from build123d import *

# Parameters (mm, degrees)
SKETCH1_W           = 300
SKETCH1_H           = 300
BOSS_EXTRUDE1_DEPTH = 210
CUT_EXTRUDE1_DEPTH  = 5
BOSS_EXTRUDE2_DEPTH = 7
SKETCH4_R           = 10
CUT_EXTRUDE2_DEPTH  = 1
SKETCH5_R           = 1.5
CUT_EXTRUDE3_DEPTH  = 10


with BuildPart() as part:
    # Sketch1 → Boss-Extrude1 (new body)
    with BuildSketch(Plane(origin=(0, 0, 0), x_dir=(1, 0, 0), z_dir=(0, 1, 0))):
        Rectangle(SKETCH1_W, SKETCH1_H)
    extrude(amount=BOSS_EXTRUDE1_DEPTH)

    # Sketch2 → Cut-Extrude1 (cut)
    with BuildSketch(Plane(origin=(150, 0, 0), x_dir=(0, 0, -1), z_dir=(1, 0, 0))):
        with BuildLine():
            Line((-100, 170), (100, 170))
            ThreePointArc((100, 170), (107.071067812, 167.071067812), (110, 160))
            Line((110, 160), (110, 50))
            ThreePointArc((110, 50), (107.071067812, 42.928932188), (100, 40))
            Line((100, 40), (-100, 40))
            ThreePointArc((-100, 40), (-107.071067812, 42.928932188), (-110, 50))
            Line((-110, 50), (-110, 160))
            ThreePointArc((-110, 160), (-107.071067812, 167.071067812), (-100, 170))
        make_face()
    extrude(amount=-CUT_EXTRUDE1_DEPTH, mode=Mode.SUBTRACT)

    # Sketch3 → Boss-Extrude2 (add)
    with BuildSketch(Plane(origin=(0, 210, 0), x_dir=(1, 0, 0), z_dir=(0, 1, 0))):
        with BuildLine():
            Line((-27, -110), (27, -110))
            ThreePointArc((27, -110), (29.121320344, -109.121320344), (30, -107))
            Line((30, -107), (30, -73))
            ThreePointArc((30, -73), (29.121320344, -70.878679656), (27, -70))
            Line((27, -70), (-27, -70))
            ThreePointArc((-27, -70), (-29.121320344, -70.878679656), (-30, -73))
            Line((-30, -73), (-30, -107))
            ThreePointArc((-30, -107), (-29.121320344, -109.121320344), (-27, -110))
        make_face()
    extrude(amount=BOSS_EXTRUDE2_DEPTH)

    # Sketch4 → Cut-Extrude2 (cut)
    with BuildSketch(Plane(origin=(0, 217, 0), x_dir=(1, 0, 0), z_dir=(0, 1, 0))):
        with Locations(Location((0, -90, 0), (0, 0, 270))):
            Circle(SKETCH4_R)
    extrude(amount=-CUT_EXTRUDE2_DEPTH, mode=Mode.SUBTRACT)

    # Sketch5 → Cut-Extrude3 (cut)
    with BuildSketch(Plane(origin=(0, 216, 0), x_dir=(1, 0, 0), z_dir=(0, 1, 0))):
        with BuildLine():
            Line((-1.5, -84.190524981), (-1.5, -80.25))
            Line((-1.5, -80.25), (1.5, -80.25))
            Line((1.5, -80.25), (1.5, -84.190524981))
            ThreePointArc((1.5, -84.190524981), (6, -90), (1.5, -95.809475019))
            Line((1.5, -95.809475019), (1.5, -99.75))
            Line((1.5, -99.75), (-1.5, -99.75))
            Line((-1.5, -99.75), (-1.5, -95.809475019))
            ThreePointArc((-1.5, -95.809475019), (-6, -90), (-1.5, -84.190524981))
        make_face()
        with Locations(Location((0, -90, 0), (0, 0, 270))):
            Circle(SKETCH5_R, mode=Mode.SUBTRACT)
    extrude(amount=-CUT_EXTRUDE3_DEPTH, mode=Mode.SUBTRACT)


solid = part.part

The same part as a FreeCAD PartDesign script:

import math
import FreeCAD as App
import Part
import Sketcher
Q = App.Units.Quantity

doc = App.newDocument("Part")
body = doc.addObject("PartDesign::Body", "Body")

sketch1 = body.newObject("Sketcher::SketchObject", "Sketch")
sketch1.AttachmentSupport = (doc.getObject("XZ_Plane"), [""])
sketch1.MapMode = "FlatFace"
sketch1.addGeometry(Part.LineSegment(App.Vector(-150, -150, 0), App.Vector(-150, 150, 0)), False)
sketch1.addGeometry(Part.LineSegment(App.Vector(-150, 150, 0), App.Vector(150, 150, 0)), False)
sketch1.addGeometry(Part.LineSegment(App.Vector(150, 150, 0), App.Vector(150, -150, 0)), False)
sketch1.addGeometry(Part.LineSegment(App.Vector(150, -150, 0), App.Vector(-150, -150, 0)), False)
sketch1.addConstraint(Sketcher.Constraint("Coincident", 0, 2, 1, 1))
sketch1.addConstraint(Sketcher.Constraint("Coincident", 1, 2, 2, 1))
sketch1.addConstraint(Sketcher.Constraint("Coincident", 2, 2, 3, 1))
sketch1.addConstraint(Sketcher.Constraint("Coincident", 3, 2, 0, 1))
sketch1.addConstraint(Sketcher.Constraint("Vertical", 0))
sketch1.addConstraint(Sketcher.Constraint("Horizontal", 1))
sketch1.addConstraint(Sketcher.Constraint("Vertical", 2))
sketch1.addConstraint(Sketcher.Constraint("Horizontal", 3))
sketch1.addConstraint(Sketcher.Constraint("Symmetric", 0, 2, 2, 2, -1, 1))
sketch1.addConstraint(Sketcher.Constraint("Equal", 3, 0))
sketch1.addConstraint(Sketcher.Constraint("DistanceX", 1, 1, 1, 2, Q("300 mm")))
pad1 = body.newObject("PartDesign::Pad", "Pad")
pad1.Profile = sketch1
pad1.Length = 210
pad1.Reversed = True

sketch2 = body.newObject("Sketcher::SketchObject", "Sketch001")
sketch2.AttachmentSupport = (doc.getObject("YZ_Plane"), [""])
sketch2.MapMode = "FlatFace"
sketch2.AttachmentOffset = App.Placement(App.Vector(0, 0, 150), App.Rotation())
sketch2.addGeometry(Part.LineSegment(App.Vector(170, -100, 0), App.Vector(170, 100, 0)), False)
sketch2.addGeometry(Part.ArcOfCircle(Part.Circle(App.Vector(160, 100, 0), App.Vector(0, 0, 1), 10), math.radians(0), math.radians(90)), False)
sketch2.addGeometry(Part.LineSegment(App.Vector(160, 110, 0), App.Vector(50, 110, 0)), False)
sketch2.addGeometry(Part.ArcOfCircle(Part.Circle(App.Vector(50, 100, 0), App.Vector(0, 0, 1), 10), math.radians(90), math.radians(180)), False)
sketch2.addGeometry(Part.LineSegment(App.Vector(40, 100, 0), App.Vector(40, -100, 0)), False)
sketch2.addGeometry(Part.ArcOfCircle(Part.Circle(App.Vector(50, -100, 0), App.Vector(0, 0, 1), 10), math.radians(180), math.radians(270)), False)
sketch2.addGeometry(Part.LineSegment(App.Vector(50, -110, 0), App.Vector(160, -110, 0)), False)
sketch2.addGeometry(Part.ArcOfCircle(Part.Circle(App.Vector(160, -100, 0), App.Vector(0, 0, 1), 10), math.radians(-90), math.radians(0)), False)
sketch2.addConstraint(Sketcher.Constraint("Tangent", 0, 2, 1, 1))
sketch2.addConstraint(Sketcher.Constraint("Tangent", 1, 2, 2, 1))
sketch2.addConstraint(Sketcher.Constraint("Tangent", 2, 2, 3, 1))
sketch2.addConstraint(Sketcher.Constraint("Tangent", 3, 2, 4, 1))
sketch2.addConstraint(Sketcher.Constraint("Tangent", 4, 2, 5, 1))
sketch2.addConstraint(Sketcher.Constraint("Tangent", 5, 2, 6, 1))
sketch2.addConstraint(Sketcher.Constraint("Tangent", 6, 2, 7, 1))
sketch2.addConstraint(Sketcher.Constraint("Tangent", 7, 2, 0, 1))
sketch2.addConstraint(Sketcher.Constraint("Vertical", 0))
sketch2.addConstraint(Sketcher.Constraint("Horizontal", 2))
sketch2.addConstraint(Sketcher.Constraint("Vertical", 4))
sketch2.addConstraint(Sketcher.Constraint("Horizontal", 6))
sketch2.addConstraint(Sketcher.Constraint("Equal", 1, 3))
sketch2.addConstraint(Sketcher.Constraint("Equal", 3, 5))
sketch2.addConstraint(Sketcher.Constraint("Equal", 5, 7))
sketch2.addConstraint(Sketcher.Constraint("Radius", 1, Q("10 mm")))
sketch2.addConstraint(Sketcher.Constraint("DistanceX", 2, 2, 2, 1, Q("110 mm")))
sketch2.addConstraint(Sketcher.Constraint("DistanceY", 0, 1, 0, 2, Q("200 mm")))
sketch2.addConstraint(Sketcher.Constraint("DistanceX", -1, 1, 1, 3, Q("160 mm")))
sketch2.addConstraint(Sketcher.Constraint("DistanceY", -1, 1, 1, 3, Q("100 mm")))
pocket1 = body.newObject("PartDesign::Pocket", "Pocket")
pocket1.Profile = sketch2
pocket1.Length = 5

sketch3 = body.newObject("Sketcher::SketchObject", "Sketch002")
sketch3.AttachmentSupport = (doc.getObject("XZ_Plane"), [""])
sketch3.MapMode = "FlatFace"
sketch3.AttachmentOffset = App.Placement(App.Vector(0, 0, -210), App.Rotation())
sketch3.addGeometry(Part.LineSegment(App.Vector(-27, 110, 0), App.Vector(27, 110, 0)), False)
sketch3.addGeometry(Part.ArcOfCircle(Part.Circle(App.Vector(27, 107, 0), App.Vector(0, 0, 1), 3), math.radians(0), math.radians(90)), False)
sketch3.addGeometry(Part.LineSegment(App.Vector(30, 107, 0), App.Vector(30, 73, 0)), False)
sketch3.addGeometry(Part.ArcOfCircle(Part.Circle(App.Vector(27, 73, 0), App.Vector(0, 0, 1), 3), math.radians(-90), math.radians(0)), False)
sketch3.addGeometry(Part.LineSegment(App.Vector(27, 70, 0), App.Vector(-27, 70, 0)), False)
sketch3.addGeometry(Part.ArcOfCircle(Part.Circle(App.Vector(-27, 73, 0), App.Vector(0, 0, 1), 3), math.radians(180), math.radians(270)), False)
sketch3.addGeometry(Part.LineSegment(App.Vector(-30, 73, 0), App.Vector(-30, 107, 0)), False)
sketch3.addGeometry(Part.ArcOfCircle(Part.Circle(App.Vector(-27, 107, 0), App.Vector(0, 0, 1), 3), math.radians(90), math.radians(180)), False)
sketch3.addConstraint(Sketcher.Constraint("Tangent", 0, 2, 1, 2))
sketch3.addConstraint(Sketcher.Constraint("Tangent", 1, 1, 2, 1))
sketch3.addConstraint(Sketcher.Constraint("Tangent", 2, 2, 3, 2))
sketch3.addConstraint(Sketcher.Constraint("Tangent", 3, 1, 4, 1))
sketch3.addConstraint(Sketcher.Constraint("Tangent", 4, 2, 5, 2))
sketch3.addConstraint(Sketcher.Constraint("Tangent", 5, 1, 6, 1))
sketch3.addConstraint(Sketcher.Constraint("Tangent", 6, 2, 7, 2))
sketch3.addConstraint(Sketcher.Constraint("Tangent", 7, 1, 0, 1))
sketch3.addConstraint(Sketcher.Constraint("Horizontal", 0))
sketch3.addConstraint(Sketcher.Constraint("Vertical", 2))
sketch3.addConstraint(Sketcher.Constraint("Horizontal", 4))
sketch3.addConstraint(Sketcher.Constraint("Vertical", 6))
sketch3.addConstraint(Sketcher.Constraint("Equal", 1, 3))
sketch3.addConstraint(Sketcher.Constraint("Equal", 3, 5))
sketch3.addConstraint(Sketcher.Constraint("Equal", 5, 7))
sketch3.addConstraint(Sketcher.Constraint("Radius", 1, Q("3 mm")))
sketch3.addConstraint(Sketcher.Constraint("DistanceX", 0, 1, 0, 2, Q("54 mm")))
sketch3.addConstraint(Sketcher.Constraint("DistanceY", 2, 2, 2, 1, Q("34 mm")))
sketch3.addConstraint(Sketcher.Constraint("DistanceX", -1, 1, 1, 3, Q("27 mm")))
sketch3.addConstraint(Sketcher.Constraint("DistanceY", -1, 1, 1, 3, Q("107 mm")))
pad2 = body.newObject("PartDesign::Pad", "Pad001")
pad2.Profile = sketch3
pad2.Length = 7
pad2.Reversed = True

sketch4 = body.newObject("Sketcher::SketchObject", "Sketch003")
sketch4.AttachmentSupport = (doc.getObject("XZ_Plane"), [""])
sketch4.MapMode = "FlatFace"
sketch4.AttachmentOffset = App.Placement(App.Vector(0, 0, -217), App.Rotation())
sketch4.addGeometry(Part.Circle(App.Vector(0, 90, 0), App.Vector(0, 0, 1), 10), False)
sketch4.addConstraint(Sketcher.Constraint("PointOnObject", 0, 3, -2))
sketch4.addConstraint(Sketcher.Constraint("Diameter", 0, Q("20 mm")))
sketch4.addConstraint(Sketcher.Constraint("DistanceY", -1, 1, 0, 3, Q("90 mm")))
pocket2 = body.newObject("PartDesign::Pocket", "Pocket001")
pocket2.Profile = sketch4
pocket2.Length = 1
pocket2.Reversed = True

sketch5 = body.newObject("Sketcher::SketchObject", "Sketch004")
sketch5.AttachmentSupport = (doc.getObject("XZ_Plane"), [""])
sketch5.MapMode = "FlatFace"
sketch5.AttachmentOffset = App.Placement(App.Vector(0, 0, -216), App.Rotation())
sketch5.addGeometry(Part.LineSegment(App.Vector(-1.5, 80.2, 0), App.Vector(-1.5, 84.2, 0)), False)
sketch5.addGeometry(Part.ArcOfCircle(Part.Circle(App.Vector(0, 90, 0), App.Vector(0, 0, 1), 6), math.radians(104), math.radians(256)), False)
sketch5.addGeometry(Part.LineSegment(App.Vector(-1.5, 95.8, 0), App.Vector(-1.5, 99.8, 0)), False)
sketch5.addGeometry(Part.LineSegment(App.Vector(-1.5, 99.8, 0), App.Vector(1.5, 99.8, 0)), False)
sketch5.addGeometry(Part.LineSegment(App.Vector(1.5, 99.8, 0), App.Vector(1.5, 95.8, 0)), False)
sketch5.addGeometry(Part.ArcOfCircle(Part.Circle(App.Vector(0, 90, 0), App.Vector(0, 0, 1), 6), math.radians(-76), math.radians(76)), False)
sketch5.addGeometry(Part.LineSegment(App.Vector(1.5, 84.2, 0), App.Vector(1.5, 80.2, 0)), False)
sketch5.addGeometry(Part.LineSegment(App.Vector(1.5, 80.2, 0), App.Vector(-1.5, 80.2, 0)), False)
sketch5.addGeometry(Part.Circle(App.Vector(0, 90, 0), App.Vector(0, 0, 1), 1.5), False)
sketch5.addConstraint(Sketcher.Constraint("Coincident", 0, 2, 1, 2))
sketch5.addConstraint(Sketcher.Constraint("Coincident", 1, 1, 2, 1))
sketch5.addConstraint(Sketcher.Constraint("Coincident", 2, 2, 3, 1))
sketch5.addConstraint(Sketcher.Constraint("Coincident", 3, 2, 4, 1))
sketch5.addConstraint(Sketcher.Constraint("Coincident", 4, 2, 5, 2))
sketch5.addConstraint(Sketcher.Constraint("Coincident", 5, 1, 6, 1))
sketch5.addConstraint(Sketcher.Constraint("Coincident", 6, 2, 7, 1))
sketch5.addConstraint(Sketcher.Constraint("Coincident", 7, 2, 0, 1))
sketch5.addConstraint(Sketcher.Constraint("Vertical", 0))
sketch5.addConstraint(Sketcher.Constraint("Vertical", 2))
sketch5.addConstraint(Sketcher.Constraint("Horizontal", 3))
sketch5.addConstraint(Sketcher.Constraint("Vertical", 4))
sketch5.addConstraint(Sketcher.Constraint("Vertical", 6))
sketch5.addConstraint(Sketcher.Constraint("Horizontal", 7))
sketch5.addConstraint(Sketcher.Constraint("Coincident", 5, 3, 1, 3))
sketch5.addConstraint(Sketcher.Constraint("Coincident", 8, 3, 1, 3))
sketch5.addConstraint(Sketcher.Constraint("Equal", 1, 5))
sketch5.addConstraint(Sketcher.Constraint("Symmetric", 1, 1, 4, 2, -2))
sketch5.addConstraint(Sketcher.Constraint("Horizontal", 0, 2, 5, 1))
sketch5.addConstraint(Sketcher.Constraint("Vertical", 0, 2, 1, 1))
sketch5.addConstraint(Sketcher.Constraint("Equal", 0, 2))
sketch5.addConstraint(Sketcher.Constraint("Diameter", 8, Q("3 mm")))
sketch5.addConstraint(Sketcher.Constraint("Radius", 1, Q("6 mm")))
sketch5.addConstraint(Sketcher.Constraint("DistanceX", 3, 1, 3, 2, Q("3 mm")))
sketch5.addConstraint(Sketcher.Constraint("DistanceY", -1, 1, 1, 3, Q("90 mm")))
sketch5.addConstraint(Sketcher.Constraint("DistanceY", -1, 1, 2, 2, Q("99.75 mm")))
pocket3 = body.newObject("PartDesign::Pocket", "Pocket002")
pocket3.Profile = sketch5
pocket3.Length = 10
pocket3.Reversed = True

doc.recompute()
